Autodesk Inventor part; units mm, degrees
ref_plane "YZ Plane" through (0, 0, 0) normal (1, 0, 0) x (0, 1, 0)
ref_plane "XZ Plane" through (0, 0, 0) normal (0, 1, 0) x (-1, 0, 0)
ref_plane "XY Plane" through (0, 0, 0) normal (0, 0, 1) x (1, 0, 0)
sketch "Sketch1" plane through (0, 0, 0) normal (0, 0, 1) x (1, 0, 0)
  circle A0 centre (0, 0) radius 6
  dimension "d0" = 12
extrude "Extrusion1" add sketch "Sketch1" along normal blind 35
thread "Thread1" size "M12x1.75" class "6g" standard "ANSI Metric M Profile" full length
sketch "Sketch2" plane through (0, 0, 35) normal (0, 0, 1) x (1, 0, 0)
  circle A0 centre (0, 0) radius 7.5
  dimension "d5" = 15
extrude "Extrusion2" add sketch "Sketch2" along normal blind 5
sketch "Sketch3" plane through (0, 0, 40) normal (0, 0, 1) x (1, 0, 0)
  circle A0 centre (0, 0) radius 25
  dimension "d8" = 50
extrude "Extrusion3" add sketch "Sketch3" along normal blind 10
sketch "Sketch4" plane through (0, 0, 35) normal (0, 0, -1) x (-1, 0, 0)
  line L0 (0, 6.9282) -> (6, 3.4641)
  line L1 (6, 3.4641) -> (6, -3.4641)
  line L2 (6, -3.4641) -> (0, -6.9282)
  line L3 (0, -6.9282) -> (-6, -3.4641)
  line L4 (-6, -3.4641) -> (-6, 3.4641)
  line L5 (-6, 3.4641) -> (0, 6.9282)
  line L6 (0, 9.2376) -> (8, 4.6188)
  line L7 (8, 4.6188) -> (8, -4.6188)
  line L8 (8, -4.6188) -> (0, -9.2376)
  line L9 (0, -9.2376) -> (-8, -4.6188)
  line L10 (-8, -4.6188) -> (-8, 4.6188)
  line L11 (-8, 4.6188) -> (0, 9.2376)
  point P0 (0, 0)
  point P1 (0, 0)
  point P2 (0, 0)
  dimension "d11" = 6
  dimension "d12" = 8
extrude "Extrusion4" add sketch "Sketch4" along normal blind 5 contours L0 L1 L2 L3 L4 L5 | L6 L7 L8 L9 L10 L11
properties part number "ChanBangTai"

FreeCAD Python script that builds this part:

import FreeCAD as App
import Part
import Sketcher
from FreeCAD import Vector
Q = App.Units.Quantity


def add_polygon(sketch, points):
    """Adds a closed chain of lines whose ends are joined by coincident constraints."""
    first, n = sketch.GeometryCount, len(points)
    for a, b in zip(points, points[1:] + points[:1]):
        sketch.addGeometry(Part.LineSegment(App.Vector(*a, 0), App.Vector(*b, 0)), False)
    for i in range(n):
        sketch.addConstraint(Sketcher.Constraint("Coincident", first + i, 2, first + (i + 1) % n, 1))

doc = App.newDocument("Part")
body = doc.addObject("PartDesign::Body", "Body")

sketch1 = doc.addObject("Sketcher::SketchObject", "Sketch")
body.addObject(sketch1)
sketch1.AttachmentSupport = (doc.XY_Plane, [""])
sketch1.MapMode = "FlatFace"
sketch1.addGeometry(Part.Circle(Vector(0, 0, 0), Vector(0, 0, 1), 6), False)
sketch1.addConstraint([
    Sketcher.Constraint("Coincident", 0, 3, -1, 1),
    Sketcher.Constraint("Diameter", 0, Q("12 mm")),
])
pad1 = doc.addObject("PartDesign::Pad", "Pad")
body.addObject(pad1)
pad1.Profile = sketch1
pad1.Length = 35

sketch2 = doc.addObject("Sketcher::SketchObject", "Sketch001")
body.addObject(sketch2)
sketch2.AttachmentSupport = (doc.XY_Plane, [""])
sketch2.MapMode = "FlatFace"
sketch2.AttachmentOffset = App.Placement(Vector(0, 0, 35), App.Rotation())
sketch2.addGeometry(Part.Circle(Vector(0, 0, 0), Vector(0, 0, 1), 7.5), False)
sketch2.addConstraint([
    Sketcher.Constraint("Coincident", 0, 3, -1, 1),
    Sketcher.Constraint("Diameter", 0, Q("15 mm")),
])
pad2 = doc.addObject("PartDesign::Pad", "Pad001")
body.addObject(pad2)
pad2.Profile = sketch2
pad2.Length = 5

sketch3 = doc.addObject("Sketcher::SketchObject", "Sketch002")
body.addObject(sketch3)
sketch3.AttachmentSupport = (doc.XY_Plane, [""])
sketch3.MapMode = "FlatFace"
sketch3.AttachmentOffset = App.Placement(Vector(0, 0, 40), App.Rotation())
sketch3.addGeometry(Part.Circle(Vector(0, 0, 0), Vector(0, 0, 1), 25), False)
sketch3.addConstraint([
    Sketcher.Constraint("Coincident", 0, 3, -1, 1),
    Sketcher.Constraint("Diameter", 0, Q("50 mm")),
])
pad3 = doc.addObject("PartDesign::Pad", "Pad002")
body.addObject(pad3)
pad3.Profile = sketch3
pad3.Length = 10

sketch4 = doc.addObject("Sketcher::SketchObject", "Sketch003")
body.addObject(sketch4)
sketch4.AttachmentSupport = (doc.XY_Plane, [""])
sketch4.MapMode = "FlatFace"
sketch4.AttachmentOffset = App.Placement(Vector(0, 0, 35), App.Rotation())
add_polygon(sketch4, [(-8, 4.6188), (0, 9.2376), (8, 4.6188), (8, -4.6188), (0, -9.2376), (-8, -4.6188)])
sketch4.addConstraint([
    Sketcher.Constraint("Vertical", 2),
    Sketcher.Constraint("Vertical", 5),
    Sketcher.Constraint("Symmetric", 0, 2, 3, 2, -1, 1),
    Sketcher.Constraint("Symmetric", 1, 2, 4, 2, -1, 1),
    Sketcher.Constraint("PointOnObject", 0, 2, -2),
    Sketcher.Constraint("Parallel", 0, 3),
    Sketcher.Constraint("Horizontal", 2, 2, 4, 2),
    Sketcher.Constraint("DistanceX", -1, 1, 1, 2, Q("8 mm")),
    Sketcher.Constraint("Angle", 0, Q("30 deg")),
    Sketcher.Constraint("DistanceY", 2, 2, 2, 1, Q("9.2376 mm")),
])
pad4 = doc.addObject("PartDesign::Pad", "Pad003")
body.addObject(pad4)
pad4.Profile = sketch4
pad4.Length = 5
pad4.Reversed = True

doc.recompute()
